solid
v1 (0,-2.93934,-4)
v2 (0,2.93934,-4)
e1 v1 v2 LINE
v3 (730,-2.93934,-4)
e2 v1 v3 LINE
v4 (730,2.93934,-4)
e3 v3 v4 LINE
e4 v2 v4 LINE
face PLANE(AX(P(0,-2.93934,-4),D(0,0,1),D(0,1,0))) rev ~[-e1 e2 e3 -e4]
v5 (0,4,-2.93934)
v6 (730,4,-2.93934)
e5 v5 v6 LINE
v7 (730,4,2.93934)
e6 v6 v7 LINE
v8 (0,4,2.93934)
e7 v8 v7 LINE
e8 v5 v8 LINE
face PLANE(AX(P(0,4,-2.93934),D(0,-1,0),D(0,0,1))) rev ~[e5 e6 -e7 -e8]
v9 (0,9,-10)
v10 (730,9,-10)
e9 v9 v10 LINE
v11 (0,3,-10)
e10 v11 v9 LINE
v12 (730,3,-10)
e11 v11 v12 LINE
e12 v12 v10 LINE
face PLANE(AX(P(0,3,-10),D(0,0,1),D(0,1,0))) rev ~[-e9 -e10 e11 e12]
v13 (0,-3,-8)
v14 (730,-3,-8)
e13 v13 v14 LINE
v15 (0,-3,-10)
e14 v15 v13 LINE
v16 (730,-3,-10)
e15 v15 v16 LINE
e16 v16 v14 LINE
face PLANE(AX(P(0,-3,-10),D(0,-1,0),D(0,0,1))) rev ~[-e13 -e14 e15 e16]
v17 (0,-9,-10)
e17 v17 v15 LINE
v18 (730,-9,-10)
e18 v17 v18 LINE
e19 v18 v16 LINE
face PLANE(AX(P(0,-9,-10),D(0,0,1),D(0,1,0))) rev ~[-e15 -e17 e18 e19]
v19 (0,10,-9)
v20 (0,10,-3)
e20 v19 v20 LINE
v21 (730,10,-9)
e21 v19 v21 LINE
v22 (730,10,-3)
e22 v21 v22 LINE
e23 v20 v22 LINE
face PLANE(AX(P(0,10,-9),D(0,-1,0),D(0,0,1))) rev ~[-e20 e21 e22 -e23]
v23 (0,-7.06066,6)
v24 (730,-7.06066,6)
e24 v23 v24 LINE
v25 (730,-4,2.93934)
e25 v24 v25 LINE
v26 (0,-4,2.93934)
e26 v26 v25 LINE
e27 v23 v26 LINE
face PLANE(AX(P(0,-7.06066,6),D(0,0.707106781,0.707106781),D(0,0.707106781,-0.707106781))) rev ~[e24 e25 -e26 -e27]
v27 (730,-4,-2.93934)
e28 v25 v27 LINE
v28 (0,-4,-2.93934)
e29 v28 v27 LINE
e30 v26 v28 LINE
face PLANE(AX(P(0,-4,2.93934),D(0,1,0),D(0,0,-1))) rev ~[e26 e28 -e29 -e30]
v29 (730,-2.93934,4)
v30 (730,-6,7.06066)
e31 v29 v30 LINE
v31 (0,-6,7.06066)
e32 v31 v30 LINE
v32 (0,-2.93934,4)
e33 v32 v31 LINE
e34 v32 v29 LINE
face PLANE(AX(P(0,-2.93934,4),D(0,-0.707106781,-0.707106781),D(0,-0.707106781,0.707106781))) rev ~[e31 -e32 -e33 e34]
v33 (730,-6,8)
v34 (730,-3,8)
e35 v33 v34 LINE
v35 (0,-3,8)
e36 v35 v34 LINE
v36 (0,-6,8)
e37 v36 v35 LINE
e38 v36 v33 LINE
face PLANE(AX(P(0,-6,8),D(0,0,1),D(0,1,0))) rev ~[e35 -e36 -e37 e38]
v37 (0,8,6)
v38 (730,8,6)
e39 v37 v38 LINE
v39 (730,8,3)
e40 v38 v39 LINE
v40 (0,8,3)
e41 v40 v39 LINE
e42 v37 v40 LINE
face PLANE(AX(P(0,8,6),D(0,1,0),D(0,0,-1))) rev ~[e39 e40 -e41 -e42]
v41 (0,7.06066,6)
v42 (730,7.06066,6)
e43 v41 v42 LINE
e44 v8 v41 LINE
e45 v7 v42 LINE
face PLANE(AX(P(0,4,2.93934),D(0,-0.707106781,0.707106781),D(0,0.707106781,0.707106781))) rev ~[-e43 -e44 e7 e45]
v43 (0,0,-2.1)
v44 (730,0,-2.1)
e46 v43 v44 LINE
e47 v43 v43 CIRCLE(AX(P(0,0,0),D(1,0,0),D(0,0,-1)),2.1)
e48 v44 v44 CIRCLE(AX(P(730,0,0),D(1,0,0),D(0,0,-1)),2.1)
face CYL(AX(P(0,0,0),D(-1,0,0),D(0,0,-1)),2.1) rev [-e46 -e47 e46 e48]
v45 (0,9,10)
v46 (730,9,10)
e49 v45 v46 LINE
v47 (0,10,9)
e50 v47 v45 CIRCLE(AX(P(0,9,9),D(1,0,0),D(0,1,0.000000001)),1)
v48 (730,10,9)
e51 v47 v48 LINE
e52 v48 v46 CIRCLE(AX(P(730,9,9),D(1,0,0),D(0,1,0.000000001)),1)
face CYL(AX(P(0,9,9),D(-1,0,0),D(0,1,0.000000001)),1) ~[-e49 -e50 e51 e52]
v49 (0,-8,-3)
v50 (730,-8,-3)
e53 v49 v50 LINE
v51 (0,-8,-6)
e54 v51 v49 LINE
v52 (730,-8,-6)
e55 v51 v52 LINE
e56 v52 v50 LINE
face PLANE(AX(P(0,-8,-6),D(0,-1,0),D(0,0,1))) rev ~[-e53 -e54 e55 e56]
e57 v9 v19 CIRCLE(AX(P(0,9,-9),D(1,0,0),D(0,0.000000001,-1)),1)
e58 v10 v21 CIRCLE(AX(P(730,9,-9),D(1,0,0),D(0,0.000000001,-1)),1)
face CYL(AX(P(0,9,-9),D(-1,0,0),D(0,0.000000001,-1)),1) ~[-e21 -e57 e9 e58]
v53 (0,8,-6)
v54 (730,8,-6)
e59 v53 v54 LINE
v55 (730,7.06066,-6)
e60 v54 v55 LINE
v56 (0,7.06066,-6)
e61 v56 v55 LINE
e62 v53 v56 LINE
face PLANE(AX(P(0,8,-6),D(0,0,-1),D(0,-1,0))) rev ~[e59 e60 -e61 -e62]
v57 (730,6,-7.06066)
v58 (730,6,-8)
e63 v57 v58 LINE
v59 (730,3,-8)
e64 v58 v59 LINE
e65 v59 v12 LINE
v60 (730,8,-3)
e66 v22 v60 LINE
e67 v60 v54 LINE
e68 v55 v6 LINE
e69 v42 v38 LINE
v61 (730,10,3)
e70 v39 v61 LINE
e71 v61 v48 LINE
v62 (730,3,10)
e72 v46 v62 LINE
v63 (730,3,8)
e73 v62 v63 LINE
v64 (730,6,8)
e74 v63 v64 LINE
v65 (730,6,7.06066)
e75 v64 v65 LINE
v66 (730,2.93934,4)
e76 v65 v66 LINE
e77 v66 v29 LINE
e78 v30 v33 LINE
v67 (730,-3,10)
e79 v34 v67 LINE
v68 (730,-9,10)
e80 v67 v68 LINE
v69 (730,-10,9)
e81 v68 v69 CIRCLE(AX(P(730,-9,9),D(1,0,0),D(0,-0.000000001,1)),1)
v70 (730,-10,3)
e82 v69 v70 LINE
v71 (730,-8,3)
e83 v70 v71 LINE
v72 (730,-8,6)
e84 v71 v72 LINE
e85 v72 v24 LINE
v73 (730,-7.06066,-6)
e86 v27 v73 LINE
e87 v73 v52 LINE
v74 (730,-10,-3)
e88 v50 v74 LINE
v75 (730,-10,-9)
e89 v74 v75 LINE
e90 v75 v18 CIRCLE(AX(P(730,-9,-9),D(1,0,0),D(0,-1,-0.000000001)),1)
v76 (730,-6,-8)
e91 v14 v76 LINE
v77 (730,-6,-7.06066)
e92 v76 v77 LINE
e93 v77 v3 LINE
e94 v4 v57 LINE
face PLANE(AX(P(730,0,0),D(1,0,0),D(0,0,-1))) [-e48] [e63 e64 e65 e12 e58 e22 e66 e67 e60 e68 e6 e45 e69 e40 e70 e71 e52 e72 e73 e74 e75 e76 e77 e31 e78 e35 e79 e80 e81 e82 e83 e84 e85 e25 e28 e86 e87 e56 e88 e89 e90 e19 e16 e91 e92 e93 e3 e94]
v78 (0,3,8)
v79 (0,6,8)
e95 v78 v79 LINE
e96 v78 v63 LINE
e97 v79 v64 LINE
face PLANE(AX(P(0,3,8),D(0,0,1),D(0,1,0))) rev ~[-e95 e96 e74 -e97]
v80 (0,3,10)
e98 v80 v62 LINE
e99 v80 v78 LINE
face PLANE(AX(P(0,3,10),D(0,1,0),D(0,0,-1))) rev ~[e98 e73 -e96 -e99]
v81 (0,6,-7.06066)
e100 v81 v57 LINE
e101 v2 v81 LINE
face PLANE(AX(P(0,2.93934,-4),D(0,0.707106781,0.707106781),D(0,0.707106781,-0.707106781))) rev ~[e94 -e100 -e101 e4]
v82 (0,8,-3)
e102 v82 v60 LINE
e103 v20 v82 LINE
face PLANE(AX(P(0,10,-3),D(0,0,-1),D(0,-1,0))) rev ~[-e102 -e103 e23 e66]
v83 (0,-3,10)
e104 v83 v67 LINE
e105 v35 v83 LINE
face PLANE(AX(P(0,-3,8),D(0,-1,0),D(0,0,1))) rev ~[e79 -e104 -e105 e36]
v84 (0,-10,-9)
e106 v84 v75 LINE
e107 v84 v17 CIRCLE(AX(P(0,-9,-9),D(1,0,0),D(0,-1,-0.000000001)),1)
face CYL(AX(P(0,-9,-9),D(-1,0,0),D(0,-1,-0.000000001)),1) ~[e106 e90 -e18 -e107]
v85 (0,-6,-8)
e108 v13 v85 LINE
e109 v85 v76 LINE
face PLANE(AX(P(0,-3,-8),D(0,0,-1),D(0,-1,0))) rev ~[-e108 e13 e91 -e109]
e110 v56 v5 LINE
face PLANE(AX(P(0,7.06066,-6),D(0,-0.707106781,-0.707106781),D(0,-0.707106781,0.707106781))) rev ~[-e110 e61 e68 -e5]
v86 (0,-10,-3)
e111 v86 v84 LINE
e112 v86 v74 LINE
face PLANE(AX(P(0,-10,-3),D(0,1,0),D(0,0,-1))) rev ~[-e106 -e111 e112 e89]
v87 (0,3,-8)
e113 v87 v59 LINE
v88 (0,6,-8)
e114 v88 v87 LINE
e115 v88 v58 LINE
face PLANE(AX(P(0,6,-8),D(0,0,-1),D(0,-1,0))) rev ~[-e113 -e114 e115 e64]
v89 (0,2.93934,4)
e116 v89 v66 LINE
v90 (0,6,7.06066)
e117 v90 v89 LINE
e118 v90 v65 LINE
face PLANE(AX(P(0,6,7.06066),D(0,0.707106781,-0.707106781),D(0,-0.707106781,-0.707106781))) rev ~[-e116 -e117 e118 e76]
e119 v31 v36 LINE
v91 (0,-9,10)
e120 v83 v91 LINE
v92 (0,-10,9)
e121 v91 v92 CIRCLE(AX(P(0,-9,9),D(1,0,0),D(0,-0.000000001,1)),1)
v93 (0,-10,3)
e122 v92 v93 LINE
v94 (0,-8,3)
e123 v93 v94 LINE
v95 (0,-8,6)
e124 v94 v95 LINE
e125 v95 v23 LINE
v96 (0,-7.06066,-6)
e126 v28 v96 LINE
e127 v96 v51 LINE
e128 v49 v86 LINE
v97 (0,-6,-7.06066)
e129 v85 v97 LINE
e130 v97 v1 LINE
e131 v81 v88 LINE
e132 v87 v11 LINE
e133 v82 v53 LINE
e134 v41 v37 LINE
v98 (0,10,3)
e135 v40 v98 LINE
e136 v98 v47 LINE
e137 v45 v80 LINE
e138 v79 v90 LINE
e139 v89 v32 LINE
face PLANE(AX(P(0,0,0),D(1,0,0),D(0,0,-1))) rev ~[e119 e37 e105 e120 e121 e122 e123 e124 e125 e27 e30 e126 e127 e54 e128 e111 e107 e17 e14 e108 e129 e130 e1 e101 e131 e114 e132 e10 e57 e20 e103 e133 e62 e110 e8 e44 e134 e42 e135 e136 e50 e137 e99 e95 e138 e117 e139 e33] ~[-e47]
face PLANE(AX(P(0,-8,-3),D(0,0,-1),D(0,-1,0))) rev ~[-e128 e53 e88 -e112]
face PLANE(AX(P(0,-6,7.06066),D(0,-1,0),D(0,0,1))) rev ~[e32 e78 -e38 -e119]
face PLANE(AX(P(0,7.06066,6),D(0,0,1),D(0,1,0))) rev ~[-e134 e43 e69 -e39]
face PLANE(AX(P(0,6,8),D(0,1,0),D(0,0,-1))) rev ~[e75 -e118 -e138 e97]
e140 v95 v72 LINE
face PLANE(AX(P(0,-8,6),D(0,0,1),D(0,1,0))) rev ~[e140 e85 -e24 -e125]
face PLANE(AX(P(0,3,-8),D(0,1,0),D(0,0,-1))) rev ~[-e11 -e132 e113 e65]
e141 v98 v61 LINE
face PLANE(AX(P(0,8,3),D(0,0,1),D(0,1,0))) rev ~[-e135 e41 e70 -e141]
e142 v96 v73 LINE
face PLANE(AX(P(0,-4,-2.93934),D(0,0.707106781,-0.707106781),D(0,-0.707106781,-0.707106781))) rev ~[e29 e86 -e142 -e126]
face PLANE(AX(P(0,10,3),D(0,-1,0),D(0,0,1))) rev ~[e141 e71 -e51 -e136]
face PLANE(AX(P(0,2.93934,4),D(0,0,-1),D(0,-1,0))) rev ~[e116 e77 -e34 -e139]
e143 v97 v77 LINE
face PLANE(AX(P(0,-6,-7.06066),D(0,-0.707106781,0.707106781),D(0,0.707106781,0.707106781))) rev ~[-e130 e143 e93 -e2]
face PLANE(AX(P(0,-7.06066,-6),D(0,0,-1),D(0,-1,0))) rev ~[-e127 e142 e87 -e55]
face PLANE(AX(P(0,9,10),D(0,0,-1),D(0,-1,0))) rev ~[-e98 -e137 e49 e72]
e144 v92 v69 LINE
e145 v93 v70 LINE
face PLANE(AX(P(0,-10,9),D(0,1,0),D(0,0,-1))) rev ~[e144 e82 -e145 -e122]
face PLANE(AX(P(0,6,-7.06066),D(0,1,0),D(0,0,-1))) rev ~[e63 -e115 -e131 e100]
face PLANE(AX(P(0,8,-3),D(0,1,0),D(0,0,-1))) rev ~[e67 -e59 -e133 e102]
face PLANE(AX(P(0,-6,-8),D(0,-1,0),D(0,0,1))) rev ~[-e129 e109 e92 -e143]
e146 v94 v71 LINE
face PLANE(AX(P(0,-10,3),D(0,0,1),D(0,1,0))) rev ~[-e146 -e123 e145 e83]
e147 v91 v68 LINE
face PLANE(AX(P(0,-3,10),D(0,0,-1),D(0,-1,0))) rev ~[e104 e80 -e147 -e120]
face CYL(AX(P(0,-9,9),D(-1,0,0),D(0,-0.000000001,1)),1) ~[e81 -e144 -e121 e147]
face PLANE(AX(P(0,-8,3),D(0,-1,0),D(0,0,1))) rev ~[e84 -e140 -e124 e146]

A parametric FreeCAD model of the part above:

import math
import FreeCAD as App
import Part
import Sketcher
from FreeCAD import Vector

doc = App.newDocument("Part")
body = doc.addObject("PartDesign::Body", "Body")

# Sketch on YZ plane
sketch1 = body.newObject("Sketcher::SketchObject", "Sketch")
sketch1.AttachmentSupport = (doc.getObject("YZ_Plane"), [""])
sketch1.MapMode = "FlatFace"
sketch1.addGeometry(Part.LineSegment(Vector(9, 10, 0), Vector(3, 10, 0)), False)
sketch1.addGeometry(Part.LineSegment(Vector(3, 10, 0), Vector(3, 8, 0)), False)
sketch1.addGeometry(Part.LineSegment(Vector(3, 8, 0), Vector(6, 8, 0)), False)
sketch1.addGeometry(Part.LineSegment(Vector(6, 8, 0), Vector(6, 7.06066, 0)), False)
sketch1.addGeometry(Part.LineSegment(Vector(6, 7.06066, 0), Vector(2.93934, 4, 0)), False)
sketch1.addGeometry(Part.LineSegment(Vector(2.93934, 4, 0), Vector(-2.93934, 4, 0)), False)
sketch1.addGeometry(Part.LineSegment(Vector(-2.93934, 4, 0), Vector(-6, 7.06066, 0)), False)
sketch1.addGeometry(Part.LineSegment(Vector(-6, 7.06066, 0), Vector(-6, 8, 0)), False)
sketch1.addGeometry(Part.LineSegment(Vector(-6, 8, 0), Vector(-3, 8, 0)), False)
sketch1.addGeometry(Part.LineSegment(Vector(-3, 8, 0), Vector(-3, 10, 0)), False)
sketch1.addGeometry(Part.LineSegment(Vector(-3, 10, 0), Vector(-9, 10, 0)), False)
sketch1.addGeometry(Part.ArcOfCircle(Part.Circle(Vector(-9, 9, 0), Vector(0, 0, 1), 1), math.radians(90), math.radians(180)), False)
sketch1.addGeometry(Part.LineSegment(Vector(-10, 9, 0), Vector(-10, 3, 0)), False)
sketch1.addGeometry(Part.LineSegment(Vector(-10, 3, 0), Vector(-8, 3, 0)), False)
sketch1.addGeometry(Part.LineSegment(Vector(-8, 3, 0), Vector(-8, 6, 0)), False)
sketch1.addGeometry(Part.LineSegment(Vector(-8, 6, 0), Vector(-7.06066, 6, 0)), False)
sketch1.addGeometry(Part.LineSegment(Vector(-7.06066, 6, 0), Vector(-4, 2.93934, 0)), False)
sketch1.addGeometry(Part.LineSegment(Vector(-4, 2.93934, 0), Vector(-4, -2.93934, 0)), False)
sketch1.addGeometry(Part.LineSegment(Vector(-4, -2.93934, 0), Vector(-7.06066, -6, 0)), False)
sketch1.addGeometry(Part.LineSegment(Vector(-7.06066, -6, 0), Vector(-8, -6, 0)), False)
sketch1.addGeometry(Part.LineSegment(Vector(-8, -6, 0), Vector(-8, -3, 0)), False)
sketch1.addGeometry(Part.LineSegment(Vector(-8, -3, 0), Vector(-10, -3, 0)), False)
sketch1.addGeometry(Part.LineSegment(Vector(-10, -3, 0), Vector(-10, -9, 0)), False)
sketch1.addGeometry(Part.ArcOfCircle(Part.Circle(Vector(-9, -9, 0), Vector(0, 0, 1), 1), math.radians(-180), math.radians(-90)), False)
sketch1.addGeometry(Part.LineSegment(Vector(-9, -10, 0), Vector(-3, -10, 0)), False)
sketch1.addGeometry(Part.LineSegment(Vector(-3, -10, 0), Vector(-3, -8, 0)), False)
sketch1.addGeometry(Part.LineSegment(Vector(-3, -8, 0), Vector(-6, -8, 0)), False)
sketch1.addGeometry(Part.LineSegment(Vector(-6, -8, 0), Vector(-6, -7.06066, 0)), False)
sketch1.addGeometry(Part.LineSegment(Vector(-6, -7.06066, 0), Vector(-2.93934, -4, 0)), False)
sketch1.addGeometry(Part.LineSegment(Vector(-2.93934, -4, 0), Vector(2.93934, -4, 0)), False)
sketch1.addGeometry(Part.LineSegment(Vector(2.93934, -4, 0), Vector(6, -7.06066, 0)), False)
sketch1.addGeometry(Part.LineSegment(Vector(6, -7.06066, 0), Vector(6, -8, 0)), False)
sketch1.addGeometry(Part.LineSegment(Vector(6, -8, 0), Vector(3, -8, 0)), False)
sketch1.addGeometry(Part.LineSegment(Vector(3, -8, 0), Vector(3, -10, 0)), False)
sketch1.addGeometry(Part.LineSegment(Vector(3, -10, 0), Vector(9, -10, 0)), False)
sketch1.addGeometry(Part.ArcOfCircle(Part.Circle(Vector(9, -9, 0), Vector(0, 0, 1), 1), math.radians(-90), math.radians(0)), False)
sketch1.addGeometry(Part.LineSegment(Vector(10, -9, 0), Vector(10, -3, 0)), False)
sketch1.addGeometry(Part.LineSegment(Vector(10, -3, 0), Vector(8, -3, 0)), False)
sketch1.addGeometry(Part.LineSegment(Vector(8, -3, 0), Vector(8, -6, 0)), False)
sketch1.addGeometry(Part.LineSegment(Vector(8, -6, 0), Vector(7.06066, -6, 0)), False)
sketch1.addGeometry(Part.LineSegment(Vector(7.06066, -6, 0), Vector(4, -2.93934, 0)), False)
sketch1.addGeometry(Part.LineSegment(Vector(4, -2.93934, 0), Vector(4, 2.93934, 0)), False)
sketch1.addGeometry(Part.LineSegment(Vector(4, 2.93934, 0), Vector(7.06066, 6, 0)), False)
sketch1.addGeometry(Part.LineSegment(Vector(7.06066, 6, 0), Vector(8, 6, 0)), False)
sketch1.addGeometry(Part.LineSegment(Vector(8, 6, 0), Vector(8, 3, 0)), False)
sketch1.addGeometry(Part.LineSegment(Vector(8, 3, 0), Vector(10, 3, 0)), False)
sketch1.addGeometry(Part.LineSegment(Vector(10, 3, 0), Vector(10, 9, 0)), False)
sketch1.addGeometry(Part.ArcOfCircle(Part.Circle(Vector(9, 9, 0), Vector(0, 0, 1), 1), math.radians(0), math.radians(90)), False)
sketch1.addGeometry(Part.Circle(Vector(0, 0, 0), Vector(0, 0, 1), 2.1), False)
sketch1.addConstraint(Sketcher.Constraint("Coincident", 0, 2, 1, 1))
sketch1.addConstraint(Sketcher.Constraint("Coincident", 1, 2, 2, 1))
sketch1.addConstraint(Sketcher.Constraint("Coincident", 2, 2, 3, 1))
sketch1.addConstraint(Sketcher.Constraint("Coincident", 3, 2, 4, 1))
sketch1.addConstraint(Sketcher.Constraint("Coincident", 4, 2, 5, 1))
sketch1.addConstraint(Sketcher.Constraint("Coincident", 5, 2, 6, 1))
sketch1.addConstraint(Sketcher.Constraint("Coincident", 6, 2, 7, 1))
sketch1.addConstraint(Sketcher.Constraint("Coincident", 7, 2, 8, 1))
sketch1.addConstraint(Sketcher.Constraint("Coincident", 8, 2, 9, 1))
sketch1.addConstraint(Sketcher.Constraint("Coincident", 9, 2, 10, 1))
sketch1.addConstraint(Sketcher.Constraint("Tangent", 10, 2, 11, 1))
sketch1.addConstraint(Sketcher.Constraint("Tangent", 11, 2, 12, 1))
sketch1.addConstraint(Sketcher.Constraint("Coincident", 12, 2, 13, 1))
sketch1.addConstraint(Sketcher.Constraint("Coincident", 13, 2, 14, 1))
sketch1.addConstraint(Sketcher.Constraint("Coincident", 14, 2, 15, 1))
sketch1.addConstraint(Sketcher.Constraint("Coincident", 15, 2, 16, 1))
sketch1.addConstraint(Sketcher.Constraint("Coincident", 16, 2, 17, 1))
sketch1.addConstraint(Sketcher.Constraint("Coincident", 17, 2, 18, 1))
sketch1.addConstraint(Sketcher.Constraint("Coincident", 18, 2, 19, 1))
sketch1.addConstraint(Sketcher.Constraint("Coincident", 19, 2, 20, 1))
sketch1.addConstraint(Sketcher.Constraint("Coincident", 20, 2, 21, 1))
sketch1.addConstraint(Sketcher.Constraint("Coincident", 21, 2, 22, 1))
sketch1.addConstraint(Sketcher.Constraint("Tangent", 22, 2, 23, 1))
sketch1.addConstraint(Sketcher.Constraint("Tangent", 23, 2, 24, 1))
sketch1.addConstraint(Sketcher.Constraint("Coincident", 24, 2, 25, 1))
sketch1.addConstraint(Sketcher.Constraint("Coincident", 25, 2, 26, 1))
sketch1.addConstraint(Sketcher.Constraint("Coincident", 26, 2, 27, 1))
sketch1.addConstraint(Sketcher.Constraint("Coincident", 27, 2, 28, 1))
sketch1.addConstraint(Sketcher.Constraint("Coincident", 28, 2, 29, 1))
sketch1.addConstraint(Sketcher.Constraint("Coincident", 29, 2, 30, 1))
sketch1.addConstraint(Sketcher.Constraint("Coincident", 30, 2, 31, 1))
sketch1.addConstraint(Sketcher.Constraint("Coincident", 31, 2, 32, 1))
sketch1.addConstraint(Sketcher.Constraint("Coincident", 32, 2, 33, 1))
sketch1.addConstraint(Sketcher.Constraint("Coincident", 33, 2, 34, 1))
sketch1.addConstraint(Sketcher.Constraint("Tangent", 34, 2, 35, 1))
sketch1.addConstraint(Sketcher.Constraint("Tangent", 35, 2, 36, 1))
sketch1.addConstraint(Sketcher.Constraint("Coincident", 36, 2, 37, 1))
sketch1.addConstraint(Sketcher.Constraint("Coincident", 37, 2, 38, 1))
sketch1.addConstraint(Sketcher.Constraint("Coincident", 38, 2, 39, 1))
sketch1.addConstraint(Sketcher.Constraint("Coincident", 39, 2, 40, 1))
sketch1.addConstraint(Sketcher.Constraint("Coincident", 40, 2, 41, 1))
sketch1.addConstraint(Sketcher.Constraint("Coincident", 41, 2, 42, 1))
sketch1.addConstraint(Sketcher.Constraint("Coincident", 42, 2, 43, 1))
sketch1.addConstraint(Sketcher.Constraint("Coincident", 43, 2, 44, 1))
sketch1.addConstraint(Sketcher.Constraint("Coincident", 44, 2, 45, 1))
sketch1.addConstraint(Sketcher.Constraint("Coincident", 45, 2, 46, 1))
sketch1.addConstraint(Sketcher.Constraint("Tangent", 46, 2, 47, 1))
sketch1.addConstraint(Sketcher.Constraint("Tangent", 47, 2, 0, 1))
sketch1.addConstraint(Sketcher.Constraint("Horizontal", 0))
sketch1.addConstraint(Sketcher.Constraint("Vertical", 1))
sketch1.addConstraint(Sketcher.Constraint("Horizontal", 2))
sketch1.addConstraint(Sketcher.Constraint("Vertical", 3))
sketch1.addConstraint(Sketcher.Constraint("Horizontal", 5))
sketch1.addConstraint(Sketcher.Constraint("Vertical", 7))
sketch1.addConstraint(Sketcher.Constraint("Horizontal", 8))
sketch1.addConstraint(Sketcher.Constraint("Vertical", 9))
sketch1.addConstraint(Sketcher.Constraint("Horizontal", 10))
sketch1.addConstraint(Sketcher.Constraint("Vertical", 12))
sketch1.addConstraint(Sketcher.Constraint("Horizontal", 13))
sketch1.addConstraint(Sketcher.Constraint("Vertical", 14))
sketch1.addConstraint(Sketcher.Constraint("Horizontal", 15))
sketch1.addConstraint(Sketcher.Constraint("Vertical", 17))
sketch1.addConstraint(Sketcher.Constraint("Horizontal", 19))
sketch1.addConstraint(Sketcher.Constraint("Vertical", 20))
sketch1.addConstraint(Sketcher.Constraint("Horizontal", 21))
sketch1.addConstraint(Sketcher.Constraint("Vertical", 22))
sketch1.addConstraint(Sketcher.Constraint("Horizontal", 24))
sketch1.addConstraint(Sketcher.Constraint("Vertical", 25))
sketch1.addConstraint(Sketcher.Constraint("Horizontal", 26))
sketch1.addConstraint(Sketcher.Constraint("Vertical", 27))
sketch1.addConstraint(Sketcher.Constraint("Horizontal", 29))
sketch1.addConstraint(Sketcher.Constraint("Vertical", 31))
sketch1.addConstraint(Sketcher.Constraint("Horizontal", 32))
sketch1.addConstraint(Sketcher.Constraint("Vertical", 33))
sketch1.addConstraint(Sketcher.Constraint("Horizontal", 34))
sketch1.addConstraint(Sketcher.Constraint("Vertical", 36))
sketch1.addConstraint(Sketcher.Constraint("Horizontal", 37))
sketch1.addConstraint(Sketcher.Constraint("Vertical", 38))
sketch1.addConstraint(Sketcher.Constraint("Horizontal", 39))
sketch1.addConstraint(Sketcher.Constraint("Vertical", 41))
sketch1.addConstraint(Sketcher.Constraint("Horizontal", 43))
sketch1.addConstraint(Sketcher.Constraint("Vertical", 44))
sketch1.addConstraint(Sketcher.Constraint("Horizontal", 45))
sketch1.addConstraint(Sketcher.Constraint("Vertical", 46))
sketch1.addConstraint(Sketcher.Constraint("Coincident", 48, 3, -1, 1))
sketch1.addConstraint(Sketcher.Constraint("Equal", 11, 23))
sketch1.addConstraint(Sketcher.Constraint("Equal", 23, 35))
sketch1.addConstraint(Sketcher.Constraint("Equal", 35, 47))
sketch1.addConstraint(Sketcher.Constraint("Symmetric", 11, 3, 35, 3, -1, 1))
sketch1.addConstraint(Sketcher.Constraint("Symmetric", 23, 3, 47, 3, -1, 1))
sketch1.addConstraint(Sketcher.Constraint("Symmetric", 1, 2, 25, 2, -1, 1))
sketch1.addConstraint(Sketcher.Constraint("Symmetric", 3, 2, 27, 2, -1, 1))
sketch1.addConstraint(Sketcher.Constraint("Symmetric", 4, 2, 28, 2, -1, 1))
sketch1.addConstraint(Sketcher.Constraint("Symmetric", 6, 2, 30, 2, -1, 1))
sketch1.addConstraint(Sketcher.Constraint("Symmetric", 8, 2, 32, 2, -1, 1))
sketch1.addConstraint(Sketcher.Constraint("Symmetric", 13, 2, 37, 2, -1, 1))
sketch1.addConstraint(Sketcher.Constraint("Symmetric", 15, 2, 39, 2, -1, 1))
sketch1.addConstraint(Sketcher.Constraint("Symmetric", 16, 2, 40, 2, -1, 1))
sketch1.addConstraint(Sketcher.Constraint("Symmetric", 18, 2, 42, 2, -1, 1))
sketch1.addConstraint(Sketcher.Constraint("Symmetric", 20, 2, 44, 2, -1, 1))
sketch1.addConstraint(Sketcher.Constraint("Symmetric", 23, 3, 35, 3, -2))
sketch1.addConstraint(Sketcher.Constraint("Symmetric", 3, 2, 6, 2, -2))
sketch1.addConstraint(Sketcher.Constraint("Symmetric", 1, 2, 8, 2, -2))
sketch1.addConstraint(Sketcher.Constraint("Symmetric", 20, 2, 37, 2, -2))
sketch1.addConstraint(Sketcher.Constraint("Symmetric", 18, 2, 39, 2, -2))
sketch1.addConstraint(Sketcher.Constraint("Perpendicular", 4, 6))
sketch1.addConstraint(Sketcher.Constraint("Parallel", 6, 16))
sketch1.addConstraint(Sketcher.Constraint("Perpendicular", 16, 18))
sketch1.addConstraint(Sketcher.Constraint("Perpendicular", 28, 30))
sketch1.addConstraint(Sketcher.Constraint("Perpendicular", 40, 42))
sketch1.addConstraint(Sketcher.Constraint("Horizontal", 17, 2, 40, 2))
sketch1.addConstraint(Sketcher.Constraint("Equal", 45, 1))
sketch1.addConstraint(Sketcher.Constraint("Equal", 43, 3))
sketch1.addConstraint(Sketcher.Constraint("Equal", 34, 12))
sketch1.addConstraint(Sketcher.Constraint("Equal", 32, 14))
sketch1.addConstraint(Sketcher.Constraint("Equal", 29, 17))
sketch1.addConstraint(Sketcher.Constraint("Equal", 6, 16))
sketch1.addConstraint(Sketcher.Constraint("Radius", 11, 1.0))
sketch1.addConstraint(Sketcher.Constraint("Diameter", 48, 4.2))
sketch1.addConstraint(Sketcher.Constraint("DistanceX", 0, 2, 0, 1, 6.0))
sketch1.addConstraint(Sketcher.Constraint("DistanceX", 2, 1, 2, 2, 3.0))
sketch1.addConstraint(Sketcher.Constraint("DistanceX", 13, 1, 13, 2, 2.0))
sketch1.addConstraint(Sketcher.Constraint("DistanceX", 11, 3, -1, 1, 9.0))
sketch1.addConstraint(Sketcher.Constraint("DistanceY", -1, 1, 4, 2, 4.0))
sketch1.addConstraint(Sketcher.Constraint("DistanceX", 5, 2, 5, 1, 5.87868))
pad1 = body.newObject("PartDesign::Pad", "Pad")
pad1.Profile = sketch1
pad1.Length = 730

doc.recompute()
